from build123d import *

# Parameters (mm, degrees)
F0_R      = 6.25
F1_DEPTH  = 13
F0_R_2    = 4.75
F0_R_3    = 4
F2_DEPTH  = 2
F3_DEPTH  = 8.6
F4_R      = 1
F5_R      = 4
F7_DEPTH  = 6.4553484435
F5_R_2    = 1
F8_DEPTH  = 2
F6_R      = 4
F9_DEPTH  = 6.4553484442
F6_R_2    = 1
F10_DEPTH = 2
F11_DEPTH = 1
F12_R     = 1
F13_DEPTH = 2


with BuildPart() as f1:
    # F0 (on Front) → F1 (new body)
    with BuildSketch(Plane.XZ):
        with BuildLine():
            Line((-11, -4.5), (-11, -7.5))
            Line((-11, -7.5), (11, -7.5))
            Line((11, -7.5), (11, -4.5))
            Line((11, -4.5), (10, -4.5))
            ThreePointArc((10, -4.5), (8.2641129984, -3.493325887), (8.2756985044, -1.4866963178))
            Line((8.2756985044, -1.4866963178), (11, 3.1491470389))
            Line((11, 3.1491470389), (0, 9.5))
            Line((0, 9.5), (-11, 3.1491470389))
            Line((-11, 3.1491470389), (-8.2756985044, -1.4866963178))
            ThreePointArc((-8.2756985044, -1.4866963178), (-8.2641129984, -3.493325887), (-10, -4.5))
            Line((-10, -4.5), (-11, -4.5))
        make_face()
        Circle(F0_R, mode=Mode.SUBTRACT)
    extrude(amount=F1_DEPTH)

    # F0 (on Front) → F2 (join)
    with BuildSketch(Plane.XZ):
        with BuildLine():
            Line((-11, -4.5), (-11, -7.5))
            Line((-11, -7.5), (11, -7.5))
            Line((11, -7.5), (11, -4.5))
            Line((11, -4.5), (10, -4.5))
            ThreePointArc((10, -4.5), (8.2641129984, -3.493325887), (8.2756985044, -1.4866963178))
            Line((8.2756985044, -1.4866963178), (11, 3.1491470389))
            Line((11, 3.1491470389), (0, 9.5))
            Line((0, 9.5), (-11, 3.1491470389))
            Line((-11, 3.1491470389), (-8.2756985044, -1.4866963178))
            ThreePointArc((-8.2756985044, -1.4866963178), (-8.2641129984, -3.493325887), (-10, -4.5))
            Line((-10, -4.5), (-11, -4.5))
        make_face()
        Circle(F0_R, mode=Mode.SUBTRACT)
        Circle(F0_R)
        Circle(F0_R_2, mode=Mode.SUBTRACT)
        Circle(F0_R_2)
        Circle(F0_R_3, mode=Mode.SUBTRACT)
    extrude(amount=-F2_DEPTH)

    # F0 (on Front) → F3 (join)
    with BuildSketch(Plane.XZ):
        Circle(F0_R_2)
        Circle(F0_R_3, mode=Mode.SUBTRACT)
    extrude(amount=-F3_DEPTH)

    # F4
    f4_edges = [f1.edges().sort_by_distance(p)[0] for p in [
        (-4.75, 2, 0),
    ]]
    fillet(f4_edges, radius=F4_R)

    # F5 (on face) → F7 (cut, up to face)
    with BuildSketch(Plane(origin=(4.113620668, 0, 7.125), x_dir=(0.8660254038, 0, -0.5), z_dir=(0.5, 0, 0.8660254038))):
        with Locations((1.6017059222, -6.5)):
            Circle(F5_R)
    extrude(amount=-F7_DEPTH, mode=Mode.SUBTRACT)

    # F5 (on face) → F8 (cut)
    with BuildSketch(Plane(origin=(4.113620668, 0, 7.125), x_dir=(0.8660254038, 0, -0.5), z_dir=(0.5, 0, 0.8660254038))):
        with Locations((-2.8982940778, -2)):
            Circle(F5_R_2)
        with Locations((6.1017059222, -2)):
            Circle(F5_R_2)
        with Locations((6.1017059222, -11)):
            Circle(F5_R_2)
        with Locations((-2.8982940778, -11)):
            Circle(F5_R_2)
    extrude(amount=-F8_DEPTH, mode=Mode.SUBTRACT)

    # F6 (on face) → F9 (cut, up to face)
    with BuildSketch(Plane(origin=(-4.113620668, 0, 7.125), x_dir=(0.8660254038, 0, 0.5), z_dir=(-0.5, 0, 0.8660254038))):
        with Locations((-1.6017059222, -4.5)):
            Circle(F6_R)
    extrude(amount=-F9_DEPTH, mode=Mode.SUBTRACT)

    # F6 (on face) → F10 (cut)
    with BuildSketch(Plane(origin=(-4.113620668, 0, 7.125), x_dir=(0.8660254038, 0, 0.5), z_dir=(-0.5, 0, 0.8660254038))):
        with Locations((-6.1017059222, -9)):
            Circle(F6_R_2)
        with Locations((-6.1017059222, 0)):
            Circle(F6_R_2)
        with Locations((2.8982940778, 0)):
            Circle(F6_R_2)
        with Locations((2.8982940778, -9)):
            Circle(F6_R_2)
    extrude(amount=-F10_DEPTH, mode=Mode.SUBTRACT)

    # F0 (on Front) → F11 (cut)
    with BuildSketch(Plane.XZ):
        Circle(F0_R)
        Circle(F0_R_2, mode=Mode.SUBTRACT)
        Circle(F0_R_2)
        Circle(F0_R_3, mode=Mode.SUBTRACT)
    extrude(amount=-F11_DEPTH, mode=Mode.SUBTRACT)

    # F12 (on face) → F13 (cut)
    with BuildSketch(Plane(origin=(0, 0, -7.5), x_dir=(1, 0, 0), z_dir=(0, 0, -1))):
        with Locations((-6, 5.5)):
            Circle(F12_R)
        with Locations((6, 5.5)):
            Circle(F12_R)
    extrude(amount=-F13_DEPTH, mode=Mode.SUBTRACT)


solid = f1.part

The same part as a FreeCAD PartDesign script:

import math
import FreeCAD as App
import Part
import Sketcher

V = App.Vector
Q = App.Units.Quantity


def edges_at(feature, points):
    """Names of the edges that pass closest to the given points."""
    edges = feature.Shape.Edges
    near = lambda p: min(range(len(edges)), key=lambda i: edges[i].distToShape(Part.Vertex(*p))[0])
    return sorted({f"Edge{near(p) + 1}" for p in points})

doc = App.newDocument("Part")
params = doc.addObject("Spreadsheet::Sheet", "Params")
for row, (alias, value) in enumerate([
    ("sketch1_radius", "2 mm"),
    ("sketch1_diameter", "12.5 mm"),
    ("sketch1_width", "22 mm"),
    ("sketch1_width2", "1 mm"),
    ("sketch1_height", "3 mm"),
    ("pad1_length", "13 mm"),
    ("sketch2_diameter", "8 mm"),
    ("sketch2_radius", "2 mm"),
    ("sketch2_width", "22 mm"),
    ("sketch2_width2", "1 mm"),
    ("sketch2_height", "3 mm"),
    ("pad2_length", "2 mm"),
    ("sketch3_diameter", "8 mm"),
    ("sketch3_diameter2", "9.5 mm"),
    ("pad3_length", "8.6 mm"),
    ("fillet_radius", "1 mm"),
    ("sketch4_diameter", "8 mm"),
    ("pocket1_length", "6.455348 mm"),
    ("sketch5_diameter", "2 mm"),
    ("pocket2_length", "2 mm"),
    ("sketch6_diameter", "8 mm"),
    ("pocket3_length", "6.455348 mm"),
    ("sketch7_diameter", "2 mm"),
    ("pocket4_length", "2 mm"),
    ("sketch8_diameter", "8 mm"),
    ("sketch8_diameter2", "12.5 mm"),
    ("pocket5_length", "1 mm"),
    ("sketch9_diameter", "2 mm"),
    ("pocket6_length", "2 mm"),
], start=1):
    params.set(f"A{row}", alias)
    params.set(f"B{row}", "=" + value)
    params.setAlias(f"B{row}", alias)

body = doc.addObject("PartDesign::Body", "Body")

# Sketch on XZ plane
sketch1 = body.newObject("Sketcher::SketchObject", "Sketch")
sketch1.AttachmentSupport = (doc.getObject("XZ_Plane"), [""])
sketch1.MapMode = "FlatFace"
sketch1.addGeometry([
    Part.LineSegment(V(-11, -4.5, 0), V(-11, -7.5, 0)),  # 0
    Part.LineSegment(V(-11, -7.5, 0), V(11, -7.5, 0)),  # 1
    Part.LineSegment(V(11, -7.5, 0), V(11, -4.5, 0)),  # 2
    Part.LineSegment(V(11, -4.5, 0), V(10, -4.5, 0)),  # 3
    Part.ArcOfCircle(Part.Circle(V(10, -2.5, 0), V(0, 0, 1), 2), math.radians(149.558933), math.radians(270)),  # 4
    Part.LineSegment(V(8.275699, -1.486696, 0), V(11, 3.149147, 0)),  # 5
    Part.LineSegment(V(11, 3.149147, 0), V(0, 9.5, 0)),  # 6
    Part.LineSegment(V(0, 9.5, 0), V(-11, 3.149147, 0)),  # 7
    Part.LineSegment(V(-11, 3.149147, 0), V(-8.275699, -1.486696, 0)),  # 8
    Part.ArcOfCircle(Part.Circle(V(-10, -2.5, 0), V(0, 0, 1), 2), math.radians(-90), math.radians(30.441067)),  # 9
    Part.LineSegment(V(-10, -4.5, 0), V(-11, -4.5, 0)),  # 10
    Part.Circle(V(0, 0, 0), V(0, 0, 1), 6.25),  # 11
], False)
sketch1.addConstraint([
    Sketcher.Constraint("Coincident", 0, 2, 1, 1),
    Sketcher.Constraint("Coincident", 1, 2, 2, 1),
    Sketcher.Constraint("Coincident", 2, 2, 3, 1),
    Sketcher.Constraint("Tangent", 3, 2, 4, 2),
    Sketcher.Constraint("Tangent", 4, 1, 5, 1),
    Sketcher.Constraint("Coincident", 5, 2, 6, 1),
    Sketcher.Constraint("Coincident", 6, 2, 7, 1),
    Sketcher.Constraint("Coincident", 7, 2, 8, 1),
    Sketcher.Constraint("Tangent", 8, 2, 9, 2),
    Sketcher.Constraint("Tangent", 9, 1, 10, 1),
    Sketcher.Constraint("Coincident", 10, 2, 0, 1),
    Sketcher.Constraint("Vertical", 0),
    Sketcher.Constraint("Horizontal", 1),
    Sketcher.Constraint("Vertical", 2),
    Sketcher.Constraint("Horizontal", 3),
    Sketcher.Constraint("Horizontal", 10),
    Sketcher.Constraint("Coincident", 11, 3, -1, 1),
    Sketcher.Constraint("Equal", 4, 9),
    Sketcher.Constraint("Symmetric", 4, 3, 9, 3, -2),
    Sketcher.Constraint("Symmetric", 5, 2, 7, 2, -2),
    Sketcher.Constraint("PointOnObject", 6, 2, -2),
    Sketcher.Constraint("Vertical", 2, 2, 5, 2),
    Sketcher.Constraint("Vertical", 0, 2, 7, 2),
    Sketcher.Constraint("Radius", 4, 2.0),
    Sketcher.Constraint("Diameter", 11, 12.5),
    Sketcher.Constraint("DistanceX", 1, 1, 1, 2, 22.0),
    Sketcher.Constraint("DistanceX", 3, 2, 3, 1, 1.0),
    Sketcher.Constraint("DistanceY", 0, 2, 0, 1, 3.0),
    Sketcher.Constraint("Angle", 6, Q("150 deg")),
    Sketcher.Constraint("DistanceY", 4, 3, 6, 2, 12.0),
    Sketcher.Constraint("DistanceY", 4, 3, -1, 1, 2.5),
])
sketch1.setExpression("Constraints[23]", "Params.sketch1_radius")
sketch1.setExpression("Constraints[24]", "Params.sketch1_diameter")
sketch1.setExpression("Constraints[25]", "Params.sketch1_width")
sketch1.setExpression("Constraints[26]", "Params.sketch1_width2")
sketch1.setExpression("Constraints[27]", "Params.sketch1_height")
pad1 = body.newObject("PartDesign::Pad", "Pad")
pad1.Profile = sketch1
pad1.setExpression("Length", "Params.pad1_length")

# Sketch on XZ plane
sketch2 = body.newObject("Sketcher::SketchObject", "Sketch001")
sketch2.AttachmentSupport = (doc.getObject("XZ_Plane"), [""])
sketch2.MapMode = "FlatFace"
sketch2.addGeometry([
    Part.LineSegment(V(-11, -4.5, 0), V(-11, -7.5, 0)),  # 0
    Part.LineSegment(V(-11, -7.5, 0), V(11, -7.5, 0)),  # 1
    Part.LineSegment(V(11, -7.5, 0), V(11, -4.5, 0)),  # 2
    Part.LineSegment(V(11, -4.5, 0), V(10, -4.5, 0)),  # 3
    Part.ArcOfCircle(Part.Circle(V(10, -2.5, 0), V(0, 0, 1), 2), math.radians(149.558933), math.radians(270)),  # 4
    Part.LineSegment(V(8.275699, -1.486696, 0), V(11, 3.149147, 0)),  # 5
    Part.LineSegment(V(11, 3.149147, 0), V(0, 9.5, 0)),  # 6
    Part.LineSegment(V(0, 9.5, 0), V(-11, 3.149147, 0)),  # 7
    Part.LineSegment(V(-11, 3.149147, 0), V(-8.275699, -1.486696, 0)),  # 8
    Part.ArcOfCircle(Part.Circle(V(-10, -2.5, 0), V(0, 0, 1), 2), math.radians(-90), math.radians(30.441067)),  # 9
    Part.LineSegment(V(-10, -4.5, 0), V(-11, -4.5, 0)),  # 10
    Part.Circle(V(0, 0, 0), V(0, 0, 1), 4),  # 11
], False)
sketch2.addConstraint([
    Sketcher.Constraint("Coincident", 0, 2, 1, 1),
    Sketcher.Constraint("Coincident", 1, 2, 2, 1),
    Sketcher.Constraint("Coincident", 2, 2, 3, 1),
    Sketcher.Constraint("Tangent", 3, 2, 4, 2),
    Sketcher.Constraint("Tangent", 4, 1, 5, 1),
    Sketcher.Constraint("Coincident", 5, 2, 6, 1),
    Sketcher.Constraint("Coincident", 6, 2, 7, 1),
    Sketcher.Constraint("Coincident", 7, 2, 8, 1),
    Sketcher.Constraint("Tangent", 8, 2, 9, 2),
    Sketcher.Constraint("Tangent", 9, 1, 10, 1),
    Sketcher.Constraint("Coincident", 10, 2, 0, 1),
    Sketcher.Constraint("Vertical", 0),
    Sketcher.Constraint("Horizontal", 1),
    Sketcher.Constraint("Vertical", 2),
    Sketcher.Constraint("Horizontal", 3),
    Sketcher.Constraint("Horizontal", 10),
    Sketcher.Constraint("Coincident", 11, 3, -1, 1),
    Sketcher.Constraint("Equal", 4, 9),
    Sketcher.Constraint("Symmetric", 4, 3, 9, 3, -2),
    Sketcher.Constraint("Symmetric", 5, 2, 7, 2, -2),
    Sketcher.Constraint("PointOnObject", 6, 2, -2),
    Sketcher.Constraint("Vertical", 2, 2, 5, 2),
    Sketcher.Constraint("Vertical", 0, 2, 7, 2),
    Sketcher.Constraint("Diameter", 11, 8.0),
    Sketcher.Constraint("Radius", 4, 2.0),
    Sketcher.Constraint("DistanceX", 1, 1, 1, 2, 22.0),
    Sketcher.Constraint("DistanceX", 3, 2, 3, 1, 1.0),
    Sketcher.Constraint("DistanceY", 0, 2, 0, 1, 3.0),
    Sketcher.Constraint("Angle", 6, Q("150 deg")),
    Sketcher.Constraint("DistanceY", 4, 3, 6, 2, 12.0),
    Sketcher.Constraint("DistanceY", 4, 3, -1, 1, 2.5),
])
sketch2.setExpression("Constraints[23]", "Params.sketch2_diameter")
sketch2.setExpression("Constraints[24]", "Params.sketch2_radius")
sketch2.setExpression("Constraints[25]", "Params.sketch2_width")
sketch2.setExpression("Constraints[26]", "Params.sketch2_width2")
sketch2.setExpression("Constraints[27]", "Params.sketch2_height")
pad2 = body.newObject("PartDesign::Pad", "Pad001")
pad2.Profile = sketch2
pad2.setExpression("Length", "Params.pad2_length")
pad2.Reversed = True

# Sketch on XZ plane
sketch3 = body.newObject("Sketcher::SketchObject", "Sketch002")
sketch3.AttachmentSupport = (doc.getObject("XZ_Plane"), [""])
sketch3.MapMode = "FlatFace"
sketch3.addGeometry([
    Part.Circle(V(0, 0, 0), V(0, 0, 1), 4.75),
    Part.Circle(V(0, 0, 0), V(0, 0, 1), 4),
], False)
sketch3.addConstraint([
    Sketcher.Constraint("Coincident", 0, 3, -1, 1),
    Sketcher.Constraint("Coincident", 1, 3, -1, 1),
    Sketcher.Constraint("Diameter", 1, 8.0),
    Sketcher.Constraint("Diameter", 0, 9.5),
])
sketch3.setExpression("Constraints[2]", "Params.sketch3_diameter")
sketch3.setExpression("Constraints[3]", "Params.sketch3_diameter2")
pad3 = body.newObject("PartDesign::Pad", "Pad002")
pad3.Profile = sketch3
pad3.setExpression("Length", "Params.pad3_length")
pad3.Reversed = True
doc.recompute()

fillet = body.newObject("PartDesign::Fillet", "Fillet")
fillet.Base = (pad3, edges_at(pad3, [(-4.75, 2, 0)]))
fillet.setExpression("Radius", "Params.fillet_radius")

# Sketch on an angled plane
sketch4 = body.newObject("Sketcher::SketchObject", "Sketch003")
sketch4.Placement = App.Placement(V(4.113621, 0, 7.125), App.Rotation(V(0.866025404, 0, -0.5), V(0, 1, 0), V(0.5, 0, 0.866025404), "ZXY"))
sketch4.addGeometry(Part.Circle(V(1.601706, -6.5, 0), V(0, 0, 1), 4), False)
sketch4.addConstraint([
    Sketcher.Constraint("Diameter", 0, 8.0),
    Sketcher.Constraint("DistanceY", 0, 3, -1, 1, 6.5),
    Sketcher.Constraint("DistanceX", -1, 1, 0, 3, 1.601706),
])
sketch4.setExpression("Constraints[0]", "Params.sketch4_diameter")
pocket1 = body.newObject("PartDesign::Pocket", "Pocket")
pocket1.Profile = sketch4
pocket1.setExpression("Length", "Params.pocket1_length")

# Sketch on an angled plane
sketch5 = body.newObject("Sketcher::SketchObject", "Sketch004")
sketch5.Placement = App.Placement(V(4.113621, 0, 7.125), App.Rotation(V(0.866025404, 0, -0.5), V(0, 1, 0), V(0.5, 0, 0.866025404), "ZXY"))
sketch5.addGeometry([
    Part.Circle(V(-2.898294, -2, 0), V(0, 0, 1), 1),
    Part.Circle(V(6.101706, -2, 0), V(0, 0, 1), 1),
    Part.Circle(V(6.101706, -11, 0), V(0, 0, 1), 1),
    Part.Circle(V(-2.898294, -11, 0), V(0, 0, 1), 1),
], False)
sketch5.addConstraint([
    Sketcher.Constraint("Equal", 0, 1),
    Sketcher.Constraint("Equal", 1, 2),
    Sketcher.Constraint("Equal", 2, 3),
    Sketcher.Constraint("Horizontal", 0, 3, 1, 3),
    Sketcher.Constraint("Horizontal", 2, 3, 3, 3),
    Sketcher.Constraint("Vertical", 1, 3, 2, 3),
    Sketcher.Constraint("Vertical", 0, 3, 3, 3),
    Sketcher.Constraint("Diameter", 0, 2.0),
    Sketcher.Constraint("DistanceY", 0, 3, -1, 1, 2.0),
    Sketcher.Constraint("DistanceY", 2, 3, -1, 1, 11.0),
    Sketcher.Constraint("DistanceX", 0, 3, 1, 3, 9.0),
    Sketcher.Constraint("DistanceX", 0, 3, -1, 1, 2.898294),
])
sketch5.setExpression("Constraints[7]", "Params.sketch5_diameter")
pocket2 = body.newObject("PartDesign::Pocket", "Pocket001")
pocket2.Profile = sketch5
pocket2.setExpression("Length", "Params.pocket2_length")

# Sketch on an angled plane
sketch6 = body.newObject("Sketcher::SketchObject", "Sketch005")
sketch6.Placement = App.Placement(V(-4.113621, 0, 7.125), App.Rotation(V(0.866025404, 0, 0.5), V(0, 1, 0), V(-0.5, 0, 0.866025404), "ZXY"))
sketch6.addGeometry(Part.Circle(V(-1.601706, -4.5, 0), V(0, 0, 1), 4), False)
sketch6.addConstraint([
    Sketcher.Constraint("Diameter", 0, 8.0),
    Sketcher.Constraint("DistanceY", 0, 3, -1, 1, 4.5),
    Sketcher.Constraint("DistanceX", 0, 3, -1, 1, 1.601706),
])
sketch6.setExpression("Constraints[0]", "Params.sketch6_diameter")
pocket3 = body.newObject("PartDesign::Pocket", "Pocket002")
pocket3.Profile = sketch6
pocket3.setExpression("Length", "Params.pocket3_length")

# Sketch on an angled plane
sketch7 = body.newObject("Sketcher::SketchObject", "Sketch006")
sketch7.Placement = App.Placement(V(-4.113621, 0, 7.125), App.Rotation(V(0.866025404, 0, 0.5), V(0, 1, 0), V(-0.5, 0, 0.866025404), "ZXY"))
sketch7.addGeometry([
    Part.Circle(V(-6.101706, -9, 0), V(0, 0, 1), 1),
    Part.Circle(V(-6.101706, 0, 0), V(0, 0, 1), 1),
    Part.Circle(V(2.898294, 0, 0), V(0, 0, 1), 1),
    Part.Circle(V(2.898294, -9, 0), V(0, 0, 1), 1),
], False)
sketch7.addConstraint([
    Sketcher.Constraint("Equal", 0, 1),
    Sketcher.Constraint("Equal", 1, 2),
    Sketcher.Constraint("Equal", 2, 3),
    Sketcher.Constraint("PointOnObject", 1, 3, -1),
    Sketcher.Constraint("PointOnObject", 2, 3, -1),
    Sketcher.Constraint("Horizontal", 0, 3, 3, 3),
    Sketcher.Constraint("Vertical", 0, 3, 1, 3),
    Sketcher.Constraint("Vertical", 2, 3, 3, 3),
    Sketcher.Constraint("Diameter", 0, 2.0),
    Sketcher.Constraint("DistanceY", 0, 3, -1, 1, 9.0),
    Sketcher.Constraint("DistanceX", 1, 3, 2, 3, 9.0),
    Sketcher.Constraint("DistanceX", 0, 3, -1, 1, 6.101706),
])
sketch7.setExpression("Constraints[8]", "Params.sketch7_diameter")
pocket4 = body.newObject("PartDesign::Pocket", "Pocket003")
pocket4.Profile = sketch7
pocket4.setExpression("Length", "Params.pocket4_length")

# Sketch on XZ plane
sketch8 = body.newObject("Sketcher::SketchObject", "Sketch007")
sketch8.AttachmentSupport = (doc.getObject("XZ_Plane"), [""])
sketch8.MapMode = "FlatFace"
sketch8.addGeometry([
    Part.Circle(V(0, 0, 0), V(0, 0, 1), 6.25),
    Part.Circle(V(0, 0, 0), V(0, 0, 1), 4),
], False)
sketch8.addConstraint([
    Sketcher.Constraint("Coincident", 0, 3, -1, 1),
    Sketcher.Constraint("Coincident", 1, 3, -1, 1),
    Sketcher.Constraint("Diameter", 1, 8.0),
    Sketcher.Constraint("Diameter", 0, 12.5),
])
sketch8.setExpression("Constraints[2]", "Params.sketch8_diameter")
sketch8.setExpression("Constraints[3]", "Params.sketch8_diameter2")
pocket5 = body.newObject("PartDesign::Pocket", "Pocket004")
pocket5.Profile = sketch8
pocket5.setExpression("Length", "Params.pocket5_length")

# Sketch on XY plane
sketch9 = body.newObject("Sketcher::SketchObject", "Sketch008")
sketch9.AttachmentSupport = (doc.getObject("XY_Plane"), [""])
sketch9.MapMode = "FlatFace"
sketch9.AttachmentOffset = App.Placement(V(0, 0, -7.5), App.Rotation())
sketch9.addGeometry([
    Part.Circle(V(-6, -5.5, 0), V(0, 0, 1), 1),
    Part.Circle(V(6, -5.5, 0), V(0, 0, 1), 1),
], False)
sketch9.addConstraint([
    Sketcher.Constraint("Equal", 0, 1),
    Sketcher.Constraint("Symmetric", 0, 3, 1, 3, -2),
    Sketcher.Constraint("Diameter", 0, 2.0),
    Sketcher.Constraint("DistanceX", 0, 3, -1, 1, 6.0),
    Sketcher.Constraint("DistanceY", 0, 3, -1, 1, 5.5),
])
sketch9.setExpression("Constraints[2]", "Params.sketch9_diameter")
pocket6 = body.newObject("PartDesign::Pocket", "Pocket005")
pocket6.Profile = sketch9
pocket6.setExpression("Length", "Params.pocket6_length")
pocket6.Reversed = True

doc.recompute()
